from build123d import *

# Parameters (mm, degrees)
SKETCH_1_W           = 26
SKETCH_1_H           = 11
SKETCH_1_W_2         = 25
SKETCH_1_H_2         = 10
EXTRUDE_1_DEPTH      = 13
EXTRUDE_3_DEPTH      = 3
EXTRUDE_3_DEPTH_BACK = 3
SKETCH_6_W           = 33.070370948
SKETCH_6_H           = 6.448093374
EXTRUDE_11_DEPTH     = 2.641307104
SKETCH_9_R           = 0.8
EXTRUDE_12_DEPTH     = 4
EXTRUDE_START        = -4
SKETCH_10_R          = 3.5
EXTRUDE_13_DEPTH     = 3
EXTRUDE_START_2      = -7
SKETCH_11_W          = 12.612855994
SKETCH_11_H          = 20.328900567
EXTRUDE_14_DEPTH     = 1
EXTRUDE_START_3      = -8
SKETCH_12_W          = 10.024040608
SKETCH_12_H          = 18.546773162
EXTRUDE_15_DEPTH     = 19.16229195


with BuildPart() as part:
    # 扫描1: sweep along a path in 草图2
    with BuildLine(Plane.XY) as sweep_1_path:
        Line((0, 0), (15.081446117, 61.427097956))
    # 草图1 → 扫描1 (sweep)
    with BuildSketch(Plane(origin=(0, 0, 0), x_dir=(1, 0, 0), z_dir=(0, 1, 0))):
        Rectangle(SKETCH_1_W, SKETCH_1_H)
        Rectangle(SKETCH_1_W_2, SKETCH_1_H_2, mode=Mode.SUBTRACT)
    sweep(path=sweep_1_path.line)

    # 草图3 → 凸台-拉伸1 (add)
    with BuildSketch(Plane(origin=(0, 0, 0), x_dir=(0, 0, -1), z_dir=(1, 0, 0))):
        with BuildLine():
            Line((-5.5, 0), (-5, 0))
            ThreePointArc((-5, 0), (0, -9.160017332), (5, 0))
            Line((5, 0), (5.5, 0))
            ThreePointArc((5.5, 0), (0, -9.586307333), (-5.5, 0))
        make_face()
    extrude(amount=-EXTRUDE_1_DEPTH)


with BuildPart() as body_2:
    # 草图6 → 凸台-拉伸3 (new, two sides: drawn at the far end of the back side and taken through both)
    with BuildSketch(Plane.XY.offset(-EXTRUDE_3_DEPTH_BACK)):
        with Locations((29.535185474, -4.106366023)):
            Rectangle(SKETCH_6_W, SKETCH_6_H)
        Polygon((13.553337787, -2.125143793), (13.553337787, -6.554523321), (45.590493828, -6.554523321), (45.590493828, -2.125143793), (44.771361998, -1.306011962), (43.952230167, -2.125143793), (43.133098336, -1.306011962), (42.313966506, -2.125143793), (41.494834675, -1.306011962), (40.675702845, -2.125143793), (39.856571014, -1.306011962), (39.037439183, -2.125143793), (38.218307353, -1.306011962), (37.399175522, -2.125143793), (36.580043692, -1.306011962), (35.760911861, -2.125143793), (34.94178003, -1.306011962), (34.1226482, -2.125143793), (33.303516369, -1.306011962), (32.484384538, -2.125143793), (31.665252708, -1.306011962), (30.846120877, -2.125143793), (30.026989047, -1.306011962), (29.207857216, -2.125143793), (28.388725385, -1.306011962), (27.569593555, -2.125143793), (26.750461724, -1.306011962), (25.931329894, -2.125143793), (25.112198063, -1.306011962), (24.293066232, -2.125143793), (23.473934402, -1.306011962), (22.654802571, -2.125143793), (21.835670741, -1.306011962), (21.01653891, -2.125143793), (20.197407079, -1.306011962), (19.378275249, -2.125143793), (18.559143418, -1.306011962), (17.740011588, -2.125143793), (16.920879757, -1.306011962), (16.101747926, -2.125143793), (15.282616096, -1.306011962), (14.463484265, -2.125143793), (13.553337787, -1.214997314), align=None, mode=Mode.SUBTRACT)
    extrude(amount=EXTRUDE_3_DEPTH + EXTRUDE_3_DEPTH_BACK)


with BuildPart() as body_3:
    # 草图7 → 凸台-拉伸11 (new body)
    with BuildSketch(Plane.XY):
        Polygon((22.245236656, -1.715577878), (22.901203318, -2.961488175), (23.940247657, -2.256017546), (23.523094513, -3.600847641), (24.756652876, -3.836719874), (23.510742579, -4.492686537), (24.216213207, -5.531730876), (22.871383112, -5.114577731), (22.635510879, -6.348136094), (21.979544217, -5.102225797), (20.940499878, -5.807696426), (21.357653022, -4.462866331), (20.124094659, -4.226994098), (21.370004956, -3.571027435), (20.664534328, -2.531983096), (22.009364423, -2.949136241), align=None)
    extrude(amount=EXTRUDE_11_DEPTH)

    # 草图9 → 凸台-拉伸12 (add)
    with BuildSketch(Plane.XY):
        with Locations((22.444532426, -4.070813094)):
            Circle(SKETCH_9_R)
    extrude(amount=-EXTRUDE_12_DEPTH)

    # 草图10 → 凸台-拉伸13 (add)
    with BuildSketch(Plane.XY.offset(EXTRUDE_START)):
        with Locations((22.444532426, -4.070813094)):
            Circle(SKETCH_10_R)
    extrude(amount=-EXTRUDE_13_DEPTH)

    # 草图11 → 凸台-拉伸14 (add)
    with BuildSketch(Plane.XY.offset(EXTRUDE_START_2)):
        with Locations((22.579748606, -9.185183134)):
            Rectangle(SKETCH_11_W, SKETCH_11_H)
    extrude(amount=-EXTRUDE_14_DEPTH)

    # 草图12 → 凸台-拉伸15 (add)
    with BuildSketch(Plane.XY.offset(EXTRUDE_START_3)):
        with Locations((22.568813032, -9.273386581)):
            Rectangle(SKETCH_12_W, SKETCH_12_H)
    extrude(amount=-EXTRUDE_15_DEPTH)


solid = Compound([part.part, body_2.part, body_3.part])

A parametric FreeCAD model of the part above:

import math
import FreeCAD as App
import Part
import Sketcher
Q = App.Units.Quantity

doc = App.newDocument("Part")
body = doc.addObject("PartDesign::Body", "Body")

sketch1 = body.newObject("Sketcher::SketchObject", "Sketch")
sketch1.AttachmentSupport = (doc.getObject("XZ_Plane"), [""])
sketch1.MapMode = "FlatFace"
sketch1.addGeometry([
    Part.LineSegment(App.Vector(-13, -6, 0), App.Vector(-13, 6, 0)),
    Part.LineSegment(App.Vector(-13, 6, 0), App.Vector(13, 6, 0)),
    Part.LineSegment(App.Vector(13, 6, 0), App.Vector(13, -6, 0)),
    Part.LineSegment(App.Vector(13, -6, 0), App.Vector(-13, -6, 0)),
    Part.LineSegment(App.Vector(12, 5, 0), App.Vector(-12, 5, 0)),
    Part.LineSegment(App.Vector(-12, 5, 0), App.Vector(-12, -5, 0)),
    Part.LineSegment(App.Vector(-12, -5, 0), App.Vector(12, -5, 0)),
    Part.LineSegment(App.Vector(12, -5, 0), App.Vector(12, 5, 0)),
], False)
sketch1.addConstraint([
    Sketcher.Constraint("Coincident", 0, 2, 1, 1),
    Sketcher.Constraint("Coincident", 1, 2, 2, 1),
    Sketcher.Constraint("Coincident", 2, 2, 3, 1),
    Sketcher.Constraint("Coincident", 3, 2, 0, 1),
    Sketcher.Constraint("Coincident", 4, 2, 5, 1),
    Sketcher.Constraint("Coincident", 5, 2, 6, 1),
    Sketcher.Constraint("Coincident", 6, 2, 7, 1),
    Sketcher.Constraint("Coincident", 7, 2, 4, 1),
    Sketcher.Constraint("Vertical", 0),
    Sketcher.Constraint("Horizontal", 1),
    Sketcher.Constraint("Vertical", 2),
    Sketcher.Constraint("Horizontal", 3),
    Sketcher.Constraint("Horizontal", 4),
    Sketcher.Constraint("Vertical", 5),
    Sketcher.Constraint("Horizontal", 6),
    Sketcher.Constraint("Vertical", 7),
    Sketcher.Constraint("Symmetric", 0, 2, 2, 2, -1, 1),
    Sketcher.Constraint("Symmetric", 4, 2, 6, 2, -1, 1),
    Sketcher.Constraint("DistanceX", 1, 1, 1, 2, Q("26 mm")),
    Sketcher.Constraint("DistanceX", 4, 2, 4, 1, Q("25 mm")),
    Sketcher.Constraint("DistanceY", 0, 1, 0, 2, Q("11 mm")),
    Sketcher.Constraint("DistanceY", 5, 2, 5, 1, Q("10 mm")),
])

sketch2 = body.newObject("Sketcher::SketchObject", "Sketch001")
sketch2.Placement = App.Placement(App.Vector(0, 0, 0), App.Rotation(App.Vector(0.238436595, 0.971158067, 0), App.Vector(0, 0, 1.000000001), App.Vector(0.971158067, -0.238436595, 0), "ZXY"))
sketch2.addGeometry(Part.LineSegment(App.Vector(0, 0, 0), App.Vector(63, 0, 0)), False)
sketch2.addConstraint([
    Sketcher.Constraint("Horizontal", 0),
    Sketcher.Constraint("Coincident", 0, 1, -1, 1),
    Sketcher.Constraint("DistanceX", 0, 1, 0, 2, Q("63.25139 mm")),
])
doc.recompute()

additivepipe = body.newObject("PartDesign::AdditivePipe", "AdditivePipe")
additivepipe.Profile = sketch1
additivepipe.Spine = (sketch2, ["Edge1"])

sketch3 = body.newObject("Sketcher::SketchObject", "Sketch002")
sketch3.AttachmentSupport = (doc.getObject("YZ_Plane"), [""])
sketch3.MapMode = "FlatFace"
sketch3.addGeometry([
    Part.LineSegment(App.Vector(0, 5, 0), App.Vector(0, 5.5, 0)),
    Part.ArcOfCircle(Part.Circle(App.Vector(-3.2, 0, 0), App.Vector(0, 0, 1), 6.4), math.radians(60), math.radians(300)),
    Part.LineSegment(App.Vector(0, -5.5, 0), App.Vector(0, -5, 0)),
    Part.ArcOfCircle(Part.Circle(App.Vector(-3.2, 0, 0), App.Vector(0, 0, 1), 5.9), math.radians(57), math.radians(303)),
], False)
sketch3.addConstraint([
    Sketcher.Constraint("Coincident", 0, 2, 1, 1),
    Sketcher.Constraint("Coincident", 1, 2, 2, 1),
    Sketcher.Constraint("Coincident", 2, 2, 3, 2),
    Sketcher.Constraint("Coincident", 3, 1, 0, 1),
    Sketcher.Constraint("Vertical", 0),
    Sketcher.Constraint("Vertical", 2),
    Sketcher.Constraint("Coincident", 3, 3, 1, 3),
    Sketcher.Constraint("Symmetric", 0, 2, 1, 2, -1, 1),
    Sketcher.Constraint("PointOnObject", 1, 3, -1),
    Sketcher.Constraint("DistanceY", 0, 1, 0, 2, Q("0.5 mm")),
    Sketcher.Constraint("DistanceY", 2, 2, -1, 1, Q("5 mm")),
    Sketcher.Constraint("Radius", 1, Q("6.370925 mm")),
])
pad1 = body.newObject("PartDesign::Pad", "Pad")
pad1.Profile = sketch3
pad1.Length = 13
pad1.Reversed = True
body2 = doc.addObject("PartDesign::Body", "Body001")

sketch4 = body2.newObject("Sketcher::SketchObject", "Sketch003")
sketch4.AttachmentSupport = (doc.getObject("XY_Plane001"), [""])
sketch4.MapMode = "FlatFace"
sketch4.addGeometry([
    Part.LineSegment(App.Vector(13, -0.9, 0), App.Vector(13, -7.3, 0)),
    Part.LineSegment(App.Vector(13, -7.3, 0), App.Vector(46.1, -7.3, 0)),
    Part.LineSegment(App.Vector(46.1, -7.3, 0), App.Vector(46.1, -0.9, 0)),
    Part.LineSegment(App.Vector(46.1, -0.9, 0), App.Vector(13, -0.9, 0)),
    Part.LineSegment(App.Vector(13.6, -6.6, 0), App.Vector(13.6, -1.2, 0)),
    Part.LineSegment(App.Vector(13.6, -1.2, 0), App.Vector(14.5, -2.1, 0)),
    Part.LineSegment(App.Vector(14.5, -2.1, 0), App.Vector(15.3, -1.3, 0)),
    Part.LineSegment(App.Vector(15.3, -1.3, 0), App.Vector(16.1, -2.1, 0)),
    Part.LineSegment(App.Vector(16.1, -2.1, 0), App.Vector(16.9, -1.3, 0)),
    Part.LineSegment(App.Vector(16.9, -1.3, 0), App.Vector(17.7, -2.1, 0)),
    Part.LineSegment(App.Vector(17.7, -2.1, 0), App.Vector(18.6, -1.3, 0)),
    Part.LineSegment(App.Vector(18.6, -1.3, 0), App.Vector(19.4, -2.1, 0)),
    Part.LineSegment(App.Vector(19.4, -2.1, 0), App.Vector(20.2, -1.3, 0)),
    Part.LineSegment(App.Vector(20.2, -1.3, 0), App.Vector(21, -2.1, 0)),
    Part.LineSegment(App.Vector(21, -2.1, 0), App.Vector(21.8, -1.3, 0)),
    Part.LineSegment(App.Vector(21.8, -1.3, 0), App.Vector(22.7, -2.1, 0)),
    Part.LineSegment(App.Vector(22.7, -2.1, 0), App.Vector(23.5, -1.3, 0)),
    Part.LineSegment(App.Vector(23.5, -1.3, 0), App.Vector(24.3, -2.1, 0)),
    Part.LineSegment(App.Vector(24.3, -2.1, 0), App.Vector(25.1, -1.3, 0)),
    Part.LineSegment(App.Vector(25.1, -1.3, 0), App.Vector(25.9, -2.1, 0)),
    Part.LineSegment(App.Vector(25.9, -2.1, 0), App.Vector(26.8, -1.3, 0)),
    Part.LineSegment(App.Vector(26.8, -1.3, 0), App.Vector(27.6, -2.1, 0)),
    Part.LineSegment(App.Vector(27.6, -2.1, 0), App.Vector(28.4, -1.3, 0)),
    Part.LineSegment(App.Vector(28.4, -1.3, 0), App.Vector(29.2, -2.1, 0)),
    Part.LineSegment(App.Vector(29.2, -2.1, 0), App.Vector(30, -1.3, 0)),
    Part.LineSegment(App.Vector(30, -1.3, 0), App.Vector(30.8, -2.1, 0)),
    Part.LineSegment(App.Vector(30.8, -2.1, 0), App.Vector(31.7, -1.3, 0)),
    Part.LineSegment(App.Vector(31.7, -1.3, 0), App.Vector(32.5, -2.1, 0)),
    Part.LineSegment(App.Vector(32.5, -2.1, 0), App.Vector(33.3, -1.3, 0)),
    Part.LineSegment(App.Vector(33.3, -1.3, 0), App.Vector(34.1, -2.1, 0)),
    Part.LineSegment(App.Vector(34.1, -2.1, 0), App.Vector(34.9, -1.3, 0)),
    Part.LineSegment(App.Vector(34.9, -1.3, 0), App.Vector(35.8, -2.1, 0)),
    Part.LineSegment(App.Vector(35.8, -2.1, 0), App.Vector(36.6, -1.3, 0)),
    Part.LineSegment(App.Vector(36.6, -1.3, 0), App.Vector(37.4, -2.1, 0)),
    Part.LineSegment(App.Vector(37.4, -2.1, 0), App.Vector(38.2, -1.3, 0)),
    Part.LineSegment(App.Vector(38.2, -1.3, 0), App.Vector(39, -2.1, 0)),
    Part.LineSegment(App.Vector(39, -2.1, 0), App.Vector(39.9, -1.3, 0)),
    Part.LineSegment(App.Vector(39.9, -1.3, 0), App.Vector(40.7, -2.1, 0)),
    Part.LineSegment(App.Vector(40.7, -2.1, 0), App.Vector(41.5, -1.3, 0)),
    Part.LineSegment(App.Vector(41.5, -1.3, 0), App.Vector(42.3, -2.1, 0)),
    Part.LineSegment(App.Vector(42.3, -2.1, 0), App.Vector(43.1, -1.3, 0)),
    Part.LineSegment(App.Vector(43.1, -1.3, 0), App.Vector(44, -2.1, 0)),
    Part.LineSegment(App.Vector(44, -2.1, 0), App.Vector(44.8, -1.3, 0)),
    Part.LineSegment(App.Vector(44.8, -1.3, 0), App.Vector(45.6, -2.1, 0)),
    Part.LineSegment(App.Vector(45.6, -2.1, 0), App.Vector(45.6, -6.6, 0)),
    Part.LineSegment(App.Vector(45.6, -6.6, 0), App.Vector(13.6, -6.6, 0)),
], False)
sketch4.addConstraint([
    Sketcher.Constraint("Coincident", 0, 2, 1, 1),
    Sketcher.Constraint("Coincident", 1, 2, 2, 1),
    Sketcher.Constraint("Coincident", 2, 2, 3, 1),
    Sketcher.Constraint("Coincident", 3, 2, 0, 1),
    Sketcher.Constraint("Coincident", 4, 2, 5, 1),
    Sketcher.Constraint("Coincident", 5, 2, 6, 1),
    Sketcher.Constraint("Coincident", 6, 2, 7, 1),
    Sketcher.Constraint("Coincident", 7, 2, 8, 1),
    Sketcher.Constraint("Coincident", 8, 2, 9, 1),
    Sketcher.Constraint("Coincident", 9, 2, 10, 1),
    Sketcher.Constraint("Coincident", 10, 2, 11, 1),
    Sketcher.Constraint("Coincident", 11, 2, 12, 1),
    Sketcher.Constraint("Coincident", 12, 2, 13, 1),
    Sketcher.Constraint("Coincident", 13, 2, 14, 1),
    Sketcher.Constraint("Coincident", 14, 2, 15, 1),
    Sketcher.Constraint("Coincident", 15, 2, 16, 1),
    Sketcher.Constraint("Coincident", 16, 2, 17, 1),
    Sketcher.Constraint("Coincident", 17, 2, 18, 1),
    Sketcher.Constraint("Coincident", 18, 2, 19, 1),
    Sketcher.Constraint("Coincident", 19, 2, 20, 1),
    Sketcher.Constraint("Coincident", 20, 2, 21, 1),
    Sketcher.Constraint("Coincident", 21, 2, 22, 1),
    Sketcher.Constraint("Coincident", 22, 2, 23, 1),
    Sketcher.Constraint("Coincident", 23, 2, 24, 1),
    Sketcher.Constraint("Coincident", 24, 2, 25, 1),
    Sketcher.Constraint("Coincident", 25, 2, 26, 1),
    Sketcher.Constraint("Coincident", 26, 2, 27, 1),
    Sketcher.Constraint("Coincident", 27, 2, 28, 1),
    Sketcher.Constraint("Coincident", 28, 2, 29, 1),
    Sketcher.Constraint("Coincident", 29, 2, 30, 1),
    Sketcher.Constraint("Coincident", 30, 2, 31, 1),
    Sketcher.Constraint("Coincident", 31, 2, 32, 1),
    Sketcher.Constraint("Coincident", 32, 2, 33, 1),
    Sketcher.Constraint("Coincident", 33, 2, 34, 1),
    Sketcher.Constraint("Coincident", 34, 2, 35, 1),
    Sketcher.Constraint("Coincident", 35, 2, 36, 1),
    Sketcher.Constraint("Coincident", 36, 2, 37, 1),
    Sketcher.Constraint("Coincident", 37, 2, 38, 1),
    Sketcher.Constraint("Coincident", 38, 2, 39, 1),
    Sketcher.Constraint("Coincident", 39, 2, 40, 1),
    Sketcher.Constraint("Coincident", 40, 2, 41, 1),
    Sketcher.Constraint("Coincident", 41, 2, 42, 1),
    Sketcher.Constraint("Coincident", 42, 2, 43, 1),
    Sketcher.Constraint("Coincident", 43, 2, 44, 1),
    Sketcher.Constraint("Coincident", 44, 2, 45, 1),
    Sketcher.Constraint("Coincident", 45, 2, 4, 1),
    Sketcher.Constraint("Vertical", 0),
    Sketcher.Constraint("Horizontal", 1),
    Sketcher.Constraint("Vertical", 2),
    Sketcher.Constraint("Horizontal", 3),
    Sketcher.Constraint("Vertical", 4),
    Sketcher.Constraint("Vertical", 44),
    Sketcher.Constraint("Horizontal", 45),
    Sketcher.Constraint("Perpendicular", 5, 6),
    Sketcher.Constraint("Perpendicular", 6, 7),
    Sketcher.Constraint("Perpendicular", 7, 8),
    Sketcher.Constraint("Perpendicular", 8, 9),
    Sketcher.Constraint("Perpendicular", 9, 10),
    Sketcher.Constraint("Perpendicular", 10, 11),
    Sketcher.Constraint("Perpendicular", 11, 12),
    Sketcher.Constraint("Perpendicular", 12, 13),
    Sketcher.Constraint("Perpendicular", 13, 14),
    Sketcher.Constraint("Perpendicular", 14, 15),
    Sketcher.Constraint("Perpendicular", 15, 16),
    Sketcher.Constraint("Perpendicular", 16, 17),
    Sketcher.Constraint("Perpendicular", 17, 18),
    Sketcher.Constraint("Perpendicular", 18, 19),
    Sketcher.Constraint("Perpendicular", 19, 20),
    Sketcher.Constraint("Perpendicular", 20, 21),
    Sketcher.Constraint("Perpendicular", 21, 22),
    Sketcher.Constraint("Perpendicular", 22, 23),
    Sketcher.Constraint("Perpendicular", 23, 24),
    Sketcher.Constraint("Perpendicular", 24, 25),
    Sketcher.Constraint("Perpendicular", 25, 26),
    Sketcher.Constraint("Perpendicular", 26, 27),
    Sketcher.Constraint("Perpendicular", 27, 28),
    Sketcher.Constraint("Perpendicular", 28, 29),
    Sketcher.Constraint("Perpendicular", 29, 30),
    Sketcher.Constraint("Perpendicular", 30, 31),
    Sketcher.Constraint("Perpendicular", 31, 32),
    Sketcher.Constraint("Perpendicular", 32, 33),
    Sketcher.Constraint("Perpendicular", 33, 34),
    Sketcher.Constraint("Perpendicular", 34, 35),
    Sketcher.Constraint("Perpendicular", 35, 36),
    Sketcher.Constraint("Perpendicular", 36, 37),
    Sketcher.Constraint("Perpendicular", 37, 38),
    Sketcher.Constraint("Perpendicular", 38, 39),
    Sketcher.Constraint("Perpendicular", 39, 40),
    Sketcher.Constraint("Perpendicular", 40, 41),
    Sketcher.Constraint("Perpendicular", 41, 42),
    Sketcher.Constraint("Perpendicular", 42, 43),
    Sketcher.Constraint("Horizontal", 5, 2, 7, 2),
    Sketcher.Constraint("Horizontal", 6, 2, 8, 2),
    Sketcher.Constraint("Horizontal", 7, 2, 9, 2),
    Sketcher.Constraint("Horizontal", 8, 2, 10, 2),
    Sketcher.Constraint("Horizontal", 9, 2, 11, 2),
    Sketcher.Constraint("Horizontal", 10, 2, 12, 2),
    Sketcher.Constraint("Horizontal", 11, 2, 13, 2),
    Sketcher.Constraint("Horizontal", 12, 2, 14, 2),
    Sketcher.Constraint("Horizontal", 13, 2, 15, 2),
    Sketcher.Constraint("Horizontal", 14, 2, 16, 2),
    Sketcher.Constraint("Horizontal", 15, 2, 17, 2),
    Sketcher.Constraint("Horizontal", 16, 2, 18, 2),
    Sketcher.Constraint("Horizontal", 17, 2, 19, 2),
    Sketcher.Constraint("Horizontal", 18, 2, 20, 2),
    Sketcher.Constraint("Horizontal", 19, 2, 21, 2),
    Sketcher.Constraint("Horizontal", 20, 2, 22, 2),
    Sketcher.Constraint("Horizontal", 21, 2, 23, 2),
    Sketcher.Constraint("Horizontal", 22, 2, 24, 2),
    Sketcher.Constraint("Horizontal", 23, 2, 25, 2),
    Sketcher.Constraint("Horizontal", 24, 2, 26, 2),
    Sketcher.Constraint("Horizontal", 25, 2, 27, 2),
    Sketcher.Constraint("Horizontal", 26, 2, 28, 2),
    Sketcher.Constraint("Horizontal", 27, 2, 29, 2),
    Sketcher.Constraint("Horizontal", 28, 2, 30, 2),
    Sketcher.Constraint("Horizontal", 29, 2, 31, 2),
    Sketcher.Constraint("Horizontal", 30, 2, 32, 2),
    Sketcher.Constraint("Horizontal", 31, 2, 33, 2),
    Sketcher.Constraint("Horizontal", 32, 2, 34, 2),
    Sketcher.Constraint("Horizontal", 33, 2, 35, 2),
    Sketcher.Constraint("Horizontal", 34, 2, 36, 2),
    Sketcher.Constraint("Horizontal", 35, 2, 37, 2),
    Sketcher.Constraint("Horizontal", 36, 2, 38, 2),
    Sketcher.Constraint("Horizontal", 37, 2, 39, 2),
    Sketcher.Constraint("Horizontal", 38, 2, 40, 2),
    Sketcher.Constraint("Horizontal", 39, 2, 41, 2),
    Sketcher.Constraint("Horizontal", 40, 2, 42, 2),
    Sketcher.Constraint("Horizontal", 41, 2, 43, 2),
    Sketcher.Constraint("Equal", 6, 7),
    Sketcher.Constraint("DistanceX", -1, 1, 0, 2, Q("13 mm")),
    Sketcher.Constraint("DistanceX", 1, 1, 1, 2, Q("33.070371 mm")),
    Sketcher.Constraint("DistanceY", 44, 2, 44, 1, Q("4.42938 mm")),
    Sketcher.Constraint("DistanceX", -1, 1, 18, 2, Q("25.112198 mm")),
    Sketcher.Constraint("DistanceX", -1, 1, 40, 2, Q("43.133098 mm")),
    Sketcher.Constraint("DistanceY", 0, 2, 6, 2, Q("6.024401 mm")),
    Sketcher.Constraint("Distance", 5, Q("1.287141 mm")),
    Sketcher.Constraint("DistanceY", 0, 2, 0, 1, Q("6.448093 mm")),
    Sketcher.Constraint("DistanceY", 2, 2, -1, 1, Q("0.882319 mm")),
])
pad2 = body2.newObject("PartDesign::Pad", "Pad001")
pad2.Profile = sketch4
pad2.Type = "TwoLengths"
pad2.Length = 3
pad2.Length2 = 3
body3 = doc.addObject("PartDesign::Body", "Body002")

sketch5 = body3.newObject("Sketcher::SketchObject", "Sketch004")
sketch5.AttachmentSupport = (doc.getObject("XY_Plane002"), [""])
sketch5.MapMode = "FlatFace"
sketch5.addGeometry([
    Part.LineSegment(App.Vector(22.9, -3, 0), App.Vector(22.2, -1.7, 0)),
    Part.LineSegment(App.Vector(22.2, -1.7, 0), App.Vector(22, -2.9, 0)),
    Part.LineSegment(App.Vector(22, -2.9, 0), App.Vector(20.7, -2.5, 0)),
    Part.LineSegment(App.Vector(20.7, -2.5, 0), App.Vector(21.4, -3.6, 0)),
    Part.LineSegment(App.Vector(21.4, -3.6, 0), App.Vector(20.1, -4.2, 0)),
    Part.LineSegment(App.Vector(20.1, -4.2, 0), App.Vector(21.4, -4.5, 0)),
    Part.LineSegment(App.Vector(21.4, -4.5, 0), App.Vector(20.9, -5.8, 0)),
    Part.LineSegment(App.Vector(20.9, -5.8, 0), App.Vector(22, -5.1, 0)),
    Part.LineSegment(App.Vector(22, -5.1, 0), App.Vector(22.6, -6.3, 0)),
    Part.LineSegment(App.Vector(22.6, -6.3, 0), App.Vector(22.9, -5.1, 0)),
    Part.LineSegment(App.Vector(22.9, -5.1, 0), App.Vector(24.2, -5.5, 0)),
    Part.LineSegment(App.Vector(24.2, -5.5, 0), App.Vector(23.5, -4.5, 0)),
    Part.LineSegment(App.Vector(23.5, -4.5, 0), App.Vector(24.8, -3.8, 0)),
    Part.LineSegment(App.Vector(24.8, -3.8, 0), App.Vector(23.5, -3.6, 0)),
    Part.LineSegment(App.Vector(23.5, -3.6, 0), App.Vector(23.9, -2.3, 0)),
    Part.LineSegment(App.Vector(23.9, -2.3, 0), App.Vector(22.9, -3, 0)),
], False)
sketch5.addConstraint([
    Sketcher.Constraint("Coincident", 0, 2, 1, 1),
    Sketcher.Constraint("Coincident", 1, 2, 2, 1),
    Sketcher.Constraint("Coincident", 2, 2, 3, 1),
    Sketcher.Constraint("Coincident", 3, 2, 4, 1),
    Sketcher.Constraint("Coincident", 4, 2, 5, 1),
    Sketcher.Constraint("Coincident", 5, 2, 6, 1),
    Sketcher.Constraint("Coincident", 6, 2, 7, 1),
    Sketcher.Constraint("Coincident", 7, 2, 8, 1),
    Sketcher.Constraint("Coincident", 8, 2, 9, 1),
    Sketcher.Constraint("Coincident", 9, 2, 10, 1),
    Sketcher.Constraint("Coincident", 10, 2, 11, 1),
    Sketcher.Constraint("Coincident", 11, 2, 12, 1),
    Sketcher.Constraint("Coincident", 12, 2, 13, 1),
    Sketcher.Constraint("Coincident", 13, 2, 14, 1),
    Sketcher.Constraint("Coincident", 14, 2, 15, 1),
    Sketcher.Constraint("Coincident", 15, 2, 0, 1),
    Sketcher.Constraint("Perpendicular", 0, 4),
    Sketcher.Constraint("Perpendicular", 1, 5),
    Sketcher.Constraint("Perpendicular", 2, 6),
    Sketcher.Constraint("Perpendicular", 3, 7),
    Sketcher.Constraint("Perpendicular", 4, 8),
    Sketcher.Constraint("Perpendicular", 5, 9),
    Sketcher.Constraint("Perpendicular", 6, 10),
    Sketcher.Constraint("Perpendicular", 7, 11),
    Sketcher.Constraint("Perpendicular", 8, 12),
    Sketcher.Constraint("Perpendicular", 9, 13),
    Sketcher.Constraint("Perpendicular", 10, 14),
    Sketcher.Constraint("Perpendicular", 11, 15),
    Sketcher.Constraint("Equal", 0, 2),
    Sketcher.Constraint("Equal", 1, 3),
    Sketcher.Constraint("Equal", 2, 4),
    Sketcher.Constraint("Equal", 3, 5),
    Sketcher.Constraint("Equal", 4, 6),
    Sketcher.Constraint("Equal", 5, 7),
    Sketcher.Constraint("Equal", 6, 8),
    Sketcher.Constraint("Equal", 7, 9),
    Sketcher.Constraint("Equal", 8, 10),
    Sketcher.Constraint("Equal", 9, 11),
    Sketcher.Constraint("Equal", 10, 12),
    Sketcher.Constraint("Equal", 11, 13),
    Sketcher.Constraint("DistanceX", -1, 1, 6, 2, Q("20.9405 mm")),
    Sketcher.Constraint("DistanceY", 7, 2, 3, 2, Q("1.531198 mm")),
    Sketcher.Constraint("DistanceX", -1, 1, 8, 2, Q("22.635511 mm")),
    Sketcher.Constraint("DistanceY", 10, 2, -1, 1, Q("5.531731 mm")),
    Sketcher.Constraint("DistanceY", 15, 2, -1, 1, Q("2.961488 mm")),
    Sketcher.Constraint("DistanceY", 1, 2, 0, 2, Q("1.233558 mm")),
    Sketcher.Constraint("DistanceX", 2, 2, 1, 2, Q("1.34483 mm")),
    Sketcher.Constraint("DistanceY", 3, 2, 1, 2, Q("0.621891 mm")),
])
pad3 = body3.newObject("PartDesign::Pad", "Pad002")
pad3.Profile = sketch5
pad3.Length = 2.641307

sketch6 = body3.newObject("Sketcher::SketchObject", "Sketch005")
sketch6.AttachmentSupport = (doc.getObject("XY_Plane002"), [""])
sketch6.MapMode = "FlatFace"
sketch6.addGeometry(Part.Circle(App.Vector(22.4, -4.1, 0), App.Vector(0, 0, 1), 0.8), False)
sketch6.addConstraint([
    Sketcher.Constraint("Diameter", 0, Q("1.6 mm")),
    Sketcher.Constraint("DistanceX", -1, 1, 0, 3, Q("22.444532 mm")),
    Sketcher.Constraint("DistanceY", 0, 3, -1, 1, Q("4.070813 mm")),
])
pad4 = body3.newObject("PartDesign::Pad", "Pad003")
pad4.Profile = sketch6
pad4.Length = 4
pad4.Reversed = True

sketch7 = body3.newObject("Sketcher::SketchObject", "Sketch006")
sketch7.AttachmentSupport = (doc.getObject("XY_Plane002"), [""])
sketch7.MapMode = "FlatFace"
sketch7.AttachmentOffset = App.Placement(App.Vector(0, 0, -4), App.Rotation())
sketch7.addGeometry(Part.Circle(App.Vector(22.4, -4.1, 0), App.Vector(0, 0, 1), 3.5), False)
sketch7.addConstraint([
    Sketcher.Constraint("Diameter", 0, Q("7 mm")),
    Sketcher.Constraint("DistanceX", -1, 1, 0, 3, Q("22.444532 mm")),
    Sketcher.Constraint("DistanceY", 0, 3, -1, 1, Q("4.070813 mm")),
])
pad5 = body3.newObject("PartDesign::Pad", "Pad004")
pad5.Profile = sketch7
pad5.Length = 3
pad5.Reversed = True

sketch8 = body3.newObject("Sketcher::SketchObject", "Sketch007")
sketch8.AttachmentSupport = (doc.getObject("XY_Plane002"), [""])
sketch8.MapMode = "FlatFace"
sketch8.AttachmentOffset = App.Placement(App.Vector(0, 0, -7), App.Rotation())
sketch8.addGeometry([
    Part.LineSegment(App.Vector(16, 1, 0), App.Vector(16, -19, 0)),
    Part.LineSegment(App.Vector(16, -19, 0), App.Vector(29, -19, 0)),
    Part.LineSegment(App.Vector(29, -19, 0), App.Vector(29, 1, 0)),
    Part.LineSegment(App.Vector(29, 1, 0), App.Vector(16, 1, 0)),
], False)
sketch8.addConstraint([
    Sketcher.Constraint("Coincident", 0, 2, 1, 1),
    Sketcher.Constraint("Coincident", 1, 2, 2, 1),
    Sketcher.Constraint("Coincident", 2, 2, 3, 1),
    Sketcher.Constraint("Coincident", 3, 2, 0, 1),
    Sketcher.Constraint("Vertical", 0),
    Sketcher.Constraint("Horizontal", 1),
    Sketcher.Constraint("Vertical", 2),
    Sketcher.Constraint("Horizontal", 3),
    Sketcher.Constraint("DistanceY", 0, 2, 0, 1, Q("20.328901 mm")),
    Sketcher.Constraint("DistanceX", 1, 1, 1, 2, Q("12.612856 mm")),
    Sketcher.Constraint("DistanceX", -1, 1, 0, 2, Q("16.273321 mm")),
    Sketcher.Constraint("DistanceY", 0, 2, -1, 1, Q("19.349633 mm")),
])
pad6 = body3.newObject("PartDesign::Pad", "Pad005")
pad6.Profile = sketch8
pad6.Length = 1
pad6.Reversed = True

sketch9 = body3.newObject("Sketcher::SketchObject", "Sketch008")
sketch9.AttachmentSupport = (doc.getObject("XY_Plane002"), [""])
sketch9.MapMode = "FlatFace"
sketch9.AttachmentOffset = App.Placement(App.Vector(0, 0, -8), App.Rotation())
sketch9.addGeometry([
    Part.LineSegment(App.Vector(18, 0, 0), App.Vector(18, -19, 0)),
    Part.LineSegment(App.Vector(18, -19, 0), App.Vector(28, -19, 0)),
    Part.LineSegment(App.Vector(28, -19, 0), App.Vector(28, 0, 0)),
    Part.LineSegment(App.Vector(28, 0, 0), App.Vector(18, 0, 0)),
], False)
sketch9.addConstraint([
    Sketcher.Constraint("Coincident", 0, 2, 1, 1),
    Sketcher.Constraint("Coincident", 1, 2, 2, 1),
    Sketcher.Constraint("Coincident", 2, 2, 3, 1),
    Sketcher.Constraint("Coincident", 3, 2, 0, 1),
    Sketcher.Constraint("Vertical", 0),
    Sketcher.Constraint("Horizontal", 1),
    Sketcher.Constraint("Vertical", 2),
    Sketcher.Constraint("Horizontal", 3),
    Sketcher.Constraint("PointOnObject", 2, 2, -1),
    Sketcher.Constraint("DistanceX", 1, 1, 1, 2, Q("10.024041 mm")),
    Sketcher.Constraint("DistanceY", 0, 2, 0, 1, Q("18.546773 mm")),
    Sketcher.Constraint("DistanceX", -1, 1, 0, 2, Q("17.556793 mm")),
])
pad7 = body3.newObject("PartDesign::Pad", "Pad006")
pad7.Profile = sketch9
pad7.Length = 19.162292
pad7.Reversed = True

doc.recompute()
